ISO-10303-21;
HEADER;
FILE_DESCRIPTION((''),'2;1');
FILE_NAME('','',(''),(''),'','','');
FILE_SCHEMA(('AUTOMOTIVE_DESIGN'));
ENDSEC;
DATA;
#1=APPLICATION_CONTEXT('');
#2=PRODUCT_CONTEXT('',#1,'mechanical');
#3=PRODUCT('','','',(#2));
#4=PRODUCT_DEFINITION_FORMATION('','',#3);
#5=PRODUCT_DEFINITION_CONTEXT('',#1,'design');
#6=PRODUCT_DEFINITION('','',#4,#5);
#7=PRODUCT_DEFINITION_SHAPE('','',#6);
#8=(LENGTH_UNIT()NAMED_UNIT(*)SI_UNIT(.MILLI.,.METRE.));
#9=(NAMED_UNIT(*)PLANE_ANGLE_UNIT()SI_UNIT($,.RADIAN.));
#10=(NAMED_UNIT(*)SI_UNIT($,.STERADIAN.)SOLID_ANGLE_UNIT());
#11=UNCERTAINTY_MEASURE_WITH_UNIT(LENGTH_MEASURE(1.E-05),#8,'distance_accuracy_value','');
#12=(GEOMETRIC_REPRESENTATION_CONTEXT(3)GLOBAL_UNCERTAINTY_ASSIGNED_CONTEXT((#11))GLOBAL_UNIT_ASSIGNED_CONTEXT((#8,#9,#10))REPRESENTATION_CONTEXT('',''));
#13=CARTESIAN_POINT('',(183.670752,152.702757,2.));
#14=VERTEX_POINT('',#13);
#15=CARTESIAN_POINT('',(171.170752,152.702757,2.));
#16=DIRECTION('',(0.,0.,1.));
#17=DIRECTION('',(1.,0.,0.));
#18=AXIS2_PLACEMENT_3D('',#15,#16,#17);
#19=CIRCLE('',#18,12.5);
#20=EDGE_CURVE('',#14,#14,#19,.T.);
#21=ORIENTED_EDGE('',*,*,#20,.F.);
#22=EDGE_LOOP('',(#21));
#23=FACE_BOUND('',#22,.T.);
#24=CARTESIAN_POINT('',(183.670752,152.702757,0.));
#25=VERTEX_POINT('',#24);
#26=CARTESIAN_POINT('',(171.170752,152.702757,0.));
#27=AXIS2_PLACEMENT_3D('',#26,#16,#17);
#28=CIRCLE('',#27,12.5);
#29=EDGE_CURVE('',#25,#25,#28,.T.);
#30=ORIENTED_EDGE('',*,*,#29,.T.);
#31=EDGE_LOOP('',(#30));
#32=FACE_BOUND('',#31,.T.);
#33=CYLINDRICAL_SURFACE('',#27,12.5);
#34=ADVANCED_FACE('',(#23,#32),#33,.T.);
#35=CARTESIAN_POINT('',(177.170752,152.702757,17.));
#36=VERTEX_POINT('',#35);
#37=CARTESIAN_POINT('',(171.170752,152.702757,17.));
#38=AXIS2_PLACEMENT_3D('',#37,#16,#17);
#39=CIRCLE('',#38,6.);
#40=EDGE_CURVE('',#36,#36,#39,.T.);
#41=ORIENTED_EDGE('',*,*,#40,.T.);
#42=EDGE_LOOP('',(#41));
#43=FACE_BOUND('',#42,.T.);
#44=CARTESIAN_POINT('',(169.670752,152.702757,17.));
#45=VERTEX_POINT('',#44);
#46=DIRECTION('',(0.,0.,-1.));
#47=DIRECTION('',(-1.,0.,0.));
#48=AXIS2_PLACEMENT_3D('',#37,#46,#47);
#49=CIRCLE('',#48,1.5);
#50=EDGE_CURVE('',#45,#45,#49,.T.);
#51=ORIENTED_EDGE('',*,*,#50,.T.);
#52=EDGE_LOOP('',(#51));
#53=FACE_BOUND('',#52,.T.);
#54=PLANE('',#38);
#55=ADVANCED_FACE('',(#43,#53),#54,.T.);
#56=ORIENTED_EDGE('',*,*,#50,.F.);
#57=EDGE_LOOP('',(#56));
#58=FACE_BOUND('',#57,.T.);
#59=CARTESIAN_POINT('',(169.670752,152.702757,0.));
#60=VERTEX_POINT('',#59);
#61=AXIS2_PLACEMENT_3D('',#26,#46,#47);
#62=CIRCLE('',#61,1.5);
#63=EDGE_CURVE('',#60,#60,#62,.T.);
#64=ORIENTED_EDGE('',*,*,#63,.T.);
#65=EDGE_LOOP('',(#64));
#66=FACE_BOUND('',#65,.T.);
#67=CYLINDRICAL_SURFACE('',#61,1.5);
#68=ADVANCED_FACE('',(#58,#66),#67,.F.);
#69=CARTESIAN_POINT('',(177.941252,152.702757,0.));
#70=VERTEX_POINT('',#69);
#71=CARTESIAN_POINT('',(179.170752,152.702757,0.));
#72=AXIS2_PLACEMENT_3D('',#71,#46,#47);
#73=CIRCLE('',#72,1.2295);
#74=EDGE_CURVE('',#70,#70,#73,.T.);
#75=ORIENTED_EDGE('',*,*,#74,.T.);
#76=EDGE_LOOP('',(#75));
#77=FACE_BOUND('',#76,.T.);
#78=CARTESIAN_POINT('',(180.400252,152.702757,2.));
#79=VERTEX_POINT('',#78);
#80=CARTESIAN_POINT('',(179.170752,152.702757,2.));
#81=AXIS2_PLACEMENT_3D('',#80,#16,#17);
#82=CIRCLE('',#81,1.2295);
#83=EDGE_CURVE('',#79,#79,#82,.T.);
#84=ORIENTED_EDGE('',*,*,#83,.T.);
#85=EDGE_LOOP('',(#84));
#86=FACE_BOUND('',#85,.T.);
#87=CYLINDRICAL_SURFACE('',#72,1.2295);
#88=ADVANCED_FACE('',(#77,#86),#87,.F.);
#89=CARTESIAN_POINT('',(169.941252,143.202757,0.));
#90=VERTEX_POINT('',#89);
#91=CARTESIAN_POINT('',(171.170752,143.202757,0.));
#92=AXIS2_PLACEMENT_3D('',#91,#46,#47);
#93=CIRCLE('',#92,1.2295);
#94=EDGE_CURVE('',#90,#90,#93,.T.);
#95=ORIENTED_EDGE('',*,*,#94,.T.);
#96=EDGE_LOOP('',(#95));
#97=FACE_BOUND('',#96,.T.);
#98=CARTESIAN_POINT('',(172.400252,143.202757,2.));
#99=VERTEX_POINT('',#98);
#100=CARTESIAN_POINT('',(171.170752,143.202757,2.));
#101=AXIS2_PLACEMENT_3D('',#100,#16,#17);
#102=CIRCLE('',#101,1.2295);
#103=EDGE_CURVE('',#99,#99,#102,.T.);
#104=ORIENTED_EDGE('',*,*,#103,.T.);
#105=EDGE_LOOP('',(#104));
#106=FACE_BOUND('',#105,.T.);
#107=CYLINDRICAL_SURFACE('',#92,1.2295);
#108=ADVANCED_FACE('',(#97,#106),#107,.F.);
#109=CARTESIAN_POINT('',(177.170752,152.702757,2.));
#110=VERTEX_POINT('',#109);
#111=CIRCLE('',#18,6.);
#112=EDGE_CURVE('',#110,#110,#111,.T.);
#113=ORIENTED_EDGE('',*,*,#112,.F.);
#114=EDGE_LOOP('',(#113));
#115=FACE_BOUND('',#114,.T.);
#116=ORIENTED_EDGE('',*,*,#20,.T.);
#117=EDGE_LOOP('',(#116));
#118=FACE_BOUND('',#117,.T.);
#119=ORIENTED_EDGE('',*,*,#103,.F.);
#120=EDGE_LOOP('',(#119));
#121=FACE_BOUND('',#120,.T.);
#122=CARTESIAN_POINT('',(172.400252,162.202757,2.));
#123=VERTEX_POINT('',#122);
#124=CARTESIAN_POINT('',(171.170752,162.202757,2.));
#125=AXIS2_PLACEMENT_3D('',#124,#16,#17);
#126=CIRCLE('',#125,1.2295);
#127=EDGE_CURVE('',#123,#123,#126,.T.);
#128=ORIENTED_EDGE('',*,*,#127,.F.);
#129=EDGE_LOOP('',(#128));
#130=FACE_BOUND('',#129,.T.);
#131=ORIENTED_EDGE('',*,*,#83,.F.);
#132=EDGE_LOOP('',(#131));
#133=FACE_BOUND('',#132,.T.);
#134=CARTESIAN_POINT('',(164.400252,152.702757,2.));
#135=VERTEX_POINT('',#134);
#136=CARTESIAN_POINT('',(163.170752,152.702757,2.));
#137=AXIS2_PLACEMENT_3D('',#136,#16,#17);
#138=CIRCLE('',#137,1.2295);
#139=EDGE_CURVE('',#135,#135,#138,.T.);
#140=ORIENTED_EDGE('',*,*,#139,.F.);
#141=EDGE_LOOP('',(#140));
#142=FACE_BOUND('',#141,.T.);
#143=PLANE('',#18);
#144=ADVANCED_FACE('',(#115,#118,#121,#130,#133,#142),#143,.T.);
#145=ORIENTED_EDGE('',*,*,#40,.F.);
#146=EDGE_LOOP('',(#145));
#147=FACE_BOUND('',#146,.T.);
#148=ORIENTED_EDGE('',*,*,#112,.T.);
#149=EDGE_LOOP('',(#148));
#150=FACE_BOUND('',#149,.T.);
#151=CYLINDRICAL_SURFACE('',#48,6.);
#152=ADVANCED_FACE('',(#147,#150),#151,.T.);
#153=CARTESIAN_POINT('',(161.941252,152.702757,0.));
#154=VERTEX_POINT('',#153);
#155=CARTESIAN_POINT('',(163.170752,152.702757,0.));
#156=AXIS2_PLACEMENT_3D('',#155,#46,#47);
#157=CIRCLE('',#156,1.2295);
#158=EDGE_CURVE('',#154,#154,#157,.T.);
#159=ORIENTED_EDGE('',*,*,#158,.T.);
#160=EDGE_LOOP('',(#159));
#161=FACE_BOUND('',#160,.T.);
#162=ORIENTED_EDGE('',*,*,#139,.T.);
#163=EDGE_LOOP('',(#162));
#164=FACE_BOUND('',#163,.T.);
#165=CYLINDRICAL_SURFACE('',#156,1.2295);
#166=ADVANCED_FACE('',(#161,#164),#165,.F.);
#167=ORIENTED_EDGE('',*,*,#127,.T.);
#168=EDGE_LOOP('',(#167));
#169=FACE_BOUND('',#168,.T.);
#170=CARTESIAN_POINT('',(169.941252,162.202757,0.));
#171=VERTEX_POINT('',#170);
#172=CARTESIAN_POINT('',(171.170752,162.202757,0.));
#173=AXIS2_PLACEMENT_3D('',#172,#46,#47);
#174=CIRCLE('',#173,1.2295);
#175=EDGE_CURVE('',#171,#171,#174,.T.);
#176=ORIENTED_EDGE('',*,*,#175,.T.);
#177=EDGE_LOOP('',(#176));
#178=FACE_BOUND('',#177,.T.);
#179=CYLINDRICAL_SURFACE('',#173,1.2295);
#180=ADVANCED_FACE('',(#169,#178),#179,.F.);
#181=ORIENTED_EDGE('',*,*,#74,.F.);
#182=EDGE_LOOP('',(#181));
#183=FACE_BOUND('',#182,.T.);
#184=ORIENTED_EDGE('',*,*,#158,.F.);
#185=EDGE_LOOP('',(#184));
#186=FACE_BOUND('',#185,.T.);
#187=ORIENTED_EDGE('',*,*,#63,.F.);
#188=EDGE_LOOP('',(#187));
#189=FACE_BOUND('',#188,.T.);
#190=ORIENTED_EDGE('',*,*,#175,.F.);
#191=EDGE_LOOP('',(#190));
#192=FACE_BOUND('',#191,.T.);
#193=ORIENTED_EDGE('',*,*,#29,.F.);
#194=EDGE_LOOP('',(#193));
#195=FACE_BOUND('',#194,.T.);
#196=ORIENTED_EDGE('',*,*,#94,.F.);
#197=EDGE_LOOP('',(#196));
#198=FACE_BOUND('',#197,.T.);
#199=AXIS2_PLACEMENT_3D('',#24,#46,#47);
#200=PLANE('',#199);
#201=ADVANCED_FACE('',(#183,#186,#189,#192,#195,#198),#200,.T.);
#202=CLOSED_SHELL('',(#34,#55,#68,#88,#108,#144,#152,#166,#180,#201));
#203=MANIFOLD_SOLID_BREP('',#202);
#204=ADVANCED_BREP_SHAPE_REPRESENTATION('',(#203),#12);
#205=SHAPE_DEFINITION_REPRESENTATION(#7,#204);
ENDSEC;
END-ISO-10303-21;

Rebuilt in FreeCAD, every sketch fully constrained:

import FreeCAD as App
import Part
import Sketcher
from FreeCAD import Vector
Q = App.Units.Quantity


def add_polygon(sketch, points):
    """Adds a closed chain of lines whose ends are joined by coincident constraints."""
    first, n = sketch.GeometryCount, len(points)
    for a, b in zip(points, points[1:] + points[:1]):
        sketch.addGeometry(Part.LineSegment(App.Vector(*a, 0), App.Vector(*b, 0)), False)
    for i in range(n):
        sketch.addConstraint(Sketcher.Constraint("Coincident", first + i, 2, first + (i + 1) % n, 1))

doc = App.newDocument("Part")
body = doc.addObject("PartDesign::Body", "Body")

sketch1 = body.newObject("Sketcher::SketchObject", "Sketch")
sketch1.AttachmentSupport = (doc.getObject("XZ_Plane"), [""])
sketch1.MapMode = "FlatFace"
sketch1.AttachmentOffset = App.Placement(Vector(0, 0, -152.702757), App.Rotation())
add_polygon(sketch1, [(171.2, 0), (171.2, 2), (183.7, 2), (183.7, 0)])
sketch1.addGeometry(Part.LineSegment(Vector(171.2, 0, 0), Vector(171.2, 2, 0)), True)
sketch1.addConstraint([
    Sketcher.Constraint("Vertical", 0),
    Sketcher.Constraint("Horizontal", 1),
    Sketcher.Constraint("Vertical", 2),
    Sketcher.Constraint("Horizontal", 3),
    Sketcher.Constraint("Vertical", 4),
    Sketcher.Constraint("Coincident", 4, 1, 3, 2),
    Sketcher.Constraint("PointOnObject", 2, 2, -1),
    Sketcher.Constraint("Horizontal", 1, 2, 4, 2),
    Sketcher.Constraint("DistanceY", 0, 1, 0, 2, Q("2 mm")),
    Sketcher.Constraint("DistanceX", 1, 1, 1, 2, Q("12.5 mm")),
    Sketcher.Constraint("DistanceX", -1, 1, 0, 2, Q("171.170752 mm")),
])
revolution = body.newObject("PartDesign::Revolution", "Revolution")
revolution.Profile = sketch1
revolution.ReferenceAxis = (sketch1, ["Axis0"])
revolution.Angle = 360

sketch2 = body.newObject("Sketcher::SketchObject", "Sketch001")
sketch2.AttachmentSupport = (doc.getObject("XY_Plane"), [""])
sketch2.MapMode = "FlatFace"
sketch2.AttachmentOffset = App.Placement(Vector(0, 0, 2), App.Rotation())
sketch2.addGeometry(Part.Circle(Vector(171, 153, 0), Vector(0, 0, 1), 6), False)
sketch2.addConstraint([
    Sketcher.Constraint("Diameter", 0, Q("12 mm")),
    Sketcher.Constraint("DistanceX", -1, 1, 0, 3, Q("171.170752 mm")),
    Sketcher.Constraint("DistanceY", -1, 1, 0, 3, Q("152.702757 mm")),
])
pad1 = body.newObject("PartDesign::Pad", "Pad")
pad1.Profile = sketch2
pad1.Length = 15

sketch3 = body.newObject("Sketcher::SketchObject", "Sketch002")
sketch3.AttachmentSupport = (doc.getObject("XY_Plane"), [""])
sketch3.MapMode = "FlatFace"
sketch3.addGeometry(Part.Circle(Vector(171.2, 152.7, 0), Vector(0, 0, 1), 1.5), False)
sketch3.addConstraint([
    Sketcher.Constraint("Diameter", 0, Q("3 mm")),
    Sketcher.Constraint("DistanceX", -1, 1, 0, 3, Q("171.170752 mm")),
    Sketcher.Constraint("DistanceY", -1, 1, 0, 3, Q("152.702757 mm")),
])
doc.recompute()
hole = body.newObject("PartDesign::Hole", "Hole")
hole.Profile = sketch3
hole.ThreadType = "None"
hole.Diameter = 3
hole.DepthType = "ThroughAll"
hole.Reversed = True

sketch4 = body.newObject("Sketcher::SketchObject", "Sketch003")
sketch4.AttachmentSupport = (doc.getObject("XY_Plane"), [""])
sketch4.MapMode = "FlatFace"
sketch4.addGeometry([
    Part.Circle(Vector(179.2, 152.7, 0), Vector(0, 0, 1), 1.2),
    Part.Circle(Vector(163.2, 152.7, 0), Vector(0, 0, 1), 1.2),
    Part.Circle(Vector(171.2, 162.2, 0), Vector(0, 0, 1), 1.2),
    Part.Circle(Vector(171.2, 143.2, 0), Vector(0, 0, 1), 1.2),
], False)
sketch4.addConstraint([
    Sketcher.Constraint("Equal", 0, 1),
    Sketcher.Constraint("Equal", 1, 2),
    Sketcher.Constraint("Equal", 2, 3),
    Sketcher.Constraint("Horizontal", 0, 3, 1, 3),
    Sketcher.Constraint("Vertical", 2, 3, 3, 3),
    Sketcher.Constraint("Diameter", 0, Q("2.459 mm")),
    Sketcher.Constraint("DistanceX", 1, 3, 0, 3, Q("16 mm")),
    Sketcher.Constraint("DistanceX", 2, 3, 0, 3, Q("8 mm")),
    Sketcher.Constraint("DistanceY", 3, 3, 2, 3, Q("19 mm")),
    Sketcher.Constraint("DistanceY", 0, 3, 2, 3, Q("9.5 mm")),
    Sketcher.Constraint("DistanceX", -1, 1, 0, 3, Q("179.170752 mm")),
    Sketcher.Constraint("DistanceY", -1, 1, 0, 3, Q("152.702757 mm")),
])
doc.recompute()
hole2 = body.newObject("PartDesign::Hole", "Hole001")
hole2.Profile = sketch4
hole2.ThreadType = "None"
hole2.Diameter = 2.459
hole2.DepthType = "Dimension"
hole2.Depth = 17
hole2.DrillPoint = "Flat"
hole2.Reversed = True

doc.recompute()
